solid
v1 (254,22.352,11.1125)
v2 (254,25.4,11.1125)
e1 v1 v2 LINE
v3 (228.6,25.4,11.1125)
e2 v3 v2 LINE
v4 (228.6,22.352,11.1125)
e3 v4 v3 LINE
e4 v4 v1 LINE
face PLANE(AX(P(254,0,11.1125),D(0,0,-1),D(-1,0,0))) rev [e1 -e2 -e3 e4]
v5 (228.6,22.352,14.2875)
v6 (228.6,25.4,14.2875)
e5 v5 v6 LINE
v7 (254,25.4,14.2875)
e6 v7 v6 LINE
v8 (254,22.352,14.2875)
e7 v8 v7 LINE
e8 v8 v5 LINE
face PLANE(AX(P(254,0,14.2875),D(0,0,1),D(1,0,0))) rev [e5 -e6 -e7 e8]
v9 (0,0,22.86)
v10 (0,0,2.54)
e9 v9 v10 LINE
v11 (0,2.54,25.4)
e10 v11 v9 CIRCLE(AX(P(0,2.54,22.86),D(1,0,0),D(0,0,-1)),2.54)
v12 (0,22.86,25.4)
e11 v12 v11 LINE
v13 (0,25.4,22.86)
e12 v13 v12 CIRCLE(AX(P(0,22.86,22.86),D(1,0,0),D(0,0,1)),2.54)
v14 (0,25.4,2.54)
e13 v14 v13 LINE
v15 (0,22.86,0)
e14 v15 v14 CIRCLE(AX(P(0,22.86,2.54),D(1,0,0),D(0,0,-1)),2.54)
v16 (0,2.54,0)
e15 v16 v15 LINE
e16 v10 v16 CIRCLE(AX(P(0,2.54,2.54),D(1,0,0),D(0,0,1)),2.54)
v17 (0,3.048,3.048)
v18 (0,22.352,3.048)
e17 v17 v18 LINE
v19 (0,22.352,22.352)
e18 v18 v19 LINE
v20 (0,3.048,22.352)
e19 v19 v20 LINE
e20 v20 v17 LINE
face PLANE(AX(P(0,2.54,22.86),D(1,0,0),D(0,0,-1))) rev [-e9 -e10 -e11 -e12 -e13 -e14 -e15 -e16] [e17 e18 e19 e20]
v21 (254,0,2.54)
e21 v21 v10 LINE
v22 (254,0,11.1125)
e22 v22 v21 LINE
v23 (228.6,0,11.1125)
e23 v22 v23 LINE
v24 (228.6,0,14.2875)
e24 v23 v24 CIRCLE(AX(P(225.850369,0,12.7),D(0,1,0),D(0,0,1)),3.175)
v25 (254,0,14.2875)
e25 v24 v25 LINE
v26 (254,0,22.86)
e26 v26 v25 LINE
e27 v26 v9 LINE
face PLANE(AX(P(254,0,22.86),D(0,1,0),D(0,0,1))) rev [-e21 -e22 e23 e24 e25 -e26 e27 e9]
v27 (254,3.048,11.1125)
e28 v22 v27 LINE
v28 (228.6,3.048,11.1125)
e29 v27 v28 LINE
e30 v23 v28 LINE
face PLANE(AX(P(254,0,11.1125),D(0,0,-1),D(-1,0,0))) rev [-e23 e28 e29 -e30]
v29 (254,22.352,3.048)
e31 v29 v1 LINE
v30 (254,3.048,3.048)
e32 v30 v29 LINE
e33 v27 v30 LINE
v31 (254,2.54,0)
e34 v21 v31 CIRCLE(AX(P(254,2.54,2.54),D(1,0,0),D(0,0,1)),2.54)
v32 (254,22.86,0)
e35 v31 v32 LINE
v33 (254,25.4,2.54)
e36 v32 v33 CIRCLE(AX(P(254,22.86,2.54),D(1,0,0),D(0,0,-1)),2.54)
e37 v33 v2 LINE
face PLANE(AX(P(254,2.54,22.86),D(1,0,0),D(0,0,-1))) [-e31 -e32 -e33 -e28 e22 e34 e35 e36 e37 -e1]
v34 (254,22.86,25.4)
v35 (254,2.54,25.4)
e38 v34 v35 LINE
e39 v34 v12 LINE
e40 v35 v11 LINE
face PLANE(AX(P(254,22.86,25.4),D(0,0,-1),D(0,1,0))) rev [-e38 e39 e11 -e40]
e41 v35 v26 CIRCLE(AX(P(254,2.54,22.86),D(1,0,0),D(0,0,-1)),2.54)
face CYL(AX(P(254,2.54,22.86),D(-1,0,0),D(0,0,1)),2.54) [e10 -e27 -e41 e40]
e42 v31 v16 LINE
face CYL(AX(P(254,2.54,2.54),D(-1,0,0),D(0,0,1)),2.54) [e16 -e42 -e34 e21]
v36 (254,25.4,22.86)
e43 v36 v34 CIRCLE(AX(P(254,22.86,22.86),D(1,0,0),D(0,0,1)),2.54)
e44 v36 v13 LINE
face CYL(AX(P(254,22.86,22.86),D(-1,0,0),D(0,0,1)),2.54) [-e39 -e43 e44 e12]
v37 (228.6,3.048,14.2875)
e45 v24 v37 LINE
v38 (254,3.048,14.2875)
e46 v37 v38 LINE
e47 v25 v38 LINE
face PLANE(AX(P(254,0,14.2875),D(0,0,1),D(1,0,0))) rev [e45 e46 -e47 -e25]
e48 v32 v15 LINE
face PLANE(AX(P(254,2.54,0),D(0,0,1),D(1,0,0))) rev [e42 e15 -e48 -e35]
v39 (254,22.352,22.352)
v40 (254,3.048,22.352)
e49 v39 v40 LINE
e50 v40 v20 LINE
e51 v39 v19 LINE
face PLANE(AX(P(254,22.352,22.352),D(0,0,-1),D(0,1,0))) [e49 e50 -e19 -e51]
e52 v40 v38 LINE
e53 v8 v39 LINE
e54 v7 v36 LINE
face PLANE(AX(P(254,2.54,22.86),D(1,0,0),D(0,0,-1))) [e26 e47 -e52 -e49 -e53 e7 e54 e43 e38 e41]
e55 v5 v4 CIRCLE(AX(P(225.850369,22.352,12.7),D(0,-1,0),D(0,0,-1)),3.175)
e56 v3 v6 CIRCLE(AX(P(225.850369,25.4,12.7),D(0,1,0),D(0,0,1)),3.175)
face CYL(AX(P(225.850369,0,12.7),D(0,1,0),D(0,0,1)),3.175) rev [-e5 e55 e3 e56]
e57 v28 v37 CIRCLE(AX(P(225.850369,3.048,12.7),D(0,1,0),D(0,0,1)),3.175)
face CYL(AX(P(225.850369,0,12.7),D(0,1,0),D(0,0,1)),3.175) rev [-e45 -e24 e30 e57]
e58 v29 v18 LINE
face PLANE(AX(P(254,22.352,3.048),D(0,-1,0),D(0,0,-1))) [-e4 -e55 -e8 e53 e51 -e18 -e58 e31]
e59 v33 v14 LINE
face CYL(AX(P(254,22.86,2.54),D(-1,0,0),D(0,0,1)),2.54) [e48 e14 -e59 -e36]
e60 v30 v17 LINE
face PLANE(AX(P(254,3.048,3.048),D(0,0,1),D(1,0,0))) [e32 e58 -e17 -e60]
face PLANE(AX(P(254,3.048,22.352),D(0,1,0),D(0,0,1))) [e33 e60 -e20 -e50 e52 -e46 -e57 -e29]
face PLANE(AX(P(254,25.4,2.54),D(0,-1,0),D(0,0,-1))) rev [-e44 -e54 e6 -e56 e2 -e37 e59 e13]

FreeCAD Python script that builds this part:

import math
import FreeCAD as App
import Part
import Sketcher

V = App.Vector
Q = App.Units.Quantity

doc = App.newDocument("Part")
params = doc.addObject("Spreadsheet::Sheet", "Params")
for row, (alias, value) in enumerate([
    ("sketch1_radius", "0.1 in"),
    ("sketch1_width", "0.8 in"),
    ("sketch1_width2", "0.76 in"),
    ("pad1_length", "10 in"),
    ("sketch2_width", "1 in"),
    ("sketch2_radius", "0.125 in"),
    ("sketch2_height", "0.125 in"),
], start=1):
    params.set(f"A{row}", alias)
    params.set(f"B{row}", "=" + value)
    params.setAlias(f"B{row}", alias)

body = doc.addObject("PartDesign::Body", "Body")

# Sketch on YZ plane
sketch1 = body.newObject("Sketcher::SketchObject", "Sketch")
sketch1.AttachmentSupport = (doc.getObject("YZ_Plane"), [""])
sketch1.MapMode = "FlatFace"
sketch1.addGeometry([
    Part.LineSegment(V(2.54, 0, 0), V(22.86, 0, 0)),  # 0
    Part.ArcOfCircle(Part.Circle(V(22.86, 2.54, 0), V(0, 0, 1), 2.54), math.radians(-90), math.radians(0)),  # 1
    Part.LineSegment(V(25.4, 2.54, 0), V(25.4, 22.86, 0)),  # 2
    Part.ArcOfCircle(Part.Circle(V(22.86, 22.86, 0), V(0, 0, 1), 2.54), math.radians(0), math.radians(90)),  # 3
    Part.LineSegment(V(22.86, 25.4, 0), V(2.54, 25.4, 0)),  # 4
    Part.ArcOfCircle(Part.Circle(V(2.54, 22.86, 0), V(0, 0, 1), 2.54), math.radians(90), math.radians(180)),  # 5
    Part.LineSegment(V(0, 22.86, 0), V(0, 2.54, 0)),  # 6
    Part.ArcOfCircle(Part.Circle(V(2.54, 2.54, 0), V(0, 0, 1), 2.54), math.radians(-180), math.radians(-90)),  # 7
    Part.LineSegment(V(3.048, 3.048, 0), V(3.048, 22.352, 0)),  # 8
    Part.LineSegment(V(3.048, 22.352, 0), V(22.352, 22.352, 0)),  # 9
    Part.LineSegment(V(22.352, 22.352, 0), V(22.352, 3.048, 0)),  # 10
    Part.LineSegment(V(22.352, 3.048, 0), V(3.048, 3.048, 0)),  # 11
], False)
sketch1.addConstraint([
    Sketcher.Constraint("Tangent", 0, 2, 1, 1),
    Sketcher.Constraint("Tangent", 1, 2, 2, 1),
    Sketcher.Constraint("Tangent", 2, 2, 3, 1),
    Sketcher.Constraint("Tangent", 3, 2, 4, 1),
    Sketcher.Constraint("Tangent", 4, 2, 5, 1),
    Sketcher.Constraint("Tangent", 5, 2, 6, 1),
    Sketcher.Constraint("Tangent", 6, 2, 7, 1),
    Sketcher.Constraint("Tangent", 7, 2, 0, 1),
    Sketcher.Constraint("Coincident", 8, 2, 9, 1),
    Sketcher.Constraint("Coincident", 9, 2, 10, 1),
    Sketcher.Constraint("Coincident", 10, 2, 11, 1),
    Sketcher.Constraint("Coincident", 11, 2, 8, 1),
    Sketcher.Constraint("Horizontal", 0),
    Sketcher.Constraint("Vertical", 2),
    Sketcher.Constraint("Horizontal", 4),
    Sketcher.Constraint("Vertical", 6),
    Sketcher.Constraint("Vertical", 8),
    Sketcher.Constraint("Horizontal", 9),
    Sketcher.Constraint("Vertical", 10),
    Sketcher.Constraint("Horizontal", 11),
    Sketcher.Constraint("Equal", 1, 3),
    Sketcher.Constraint("Equal", 3, 5),
    Sketcher.Constraint("Equal", 5, 7),
    Sketcher.Constraint("PointOnObject", 0, 2, -1),
    Sketcher.Constraint("PointOnObject", 5, 2, -2),
    Sketcher.Constraint("Equal", 4, 2),
    Sketcher.Constraint("Equal", 11, 8),
    Sketcher.Constraint("Radius", 1, Q("0.1 in")),
    Sketcher.Constraint("DistanceX", 0, 1, 0, 2, Q("0.8 in")),
    Sketcher.Constraint("DistanceX", 9, 1, 9, 2, Q("0.76 in")),
    Sketcher.Constraint("DistanceX", -1, 1, 8, 2, Q("0.12 in")),
    Sketcher.Constraint("DistanceY", -1, 1, 8, 2, Q("0.88 in")),
])
sketch1.setExpression("Constraints[27]", "Params.sketch1_radius")
sketch1.setExpression("Constraints[28]", "Params.sketch1_width")
sketch1.setExpression("Constraints[29]", "Params.sketch1_width2")
pad1 = body.newObject("PartDesign::Pad", "Pad")
pad1.Profile = sketch1
pad1.setExpression("Length", "Params.pad1_length")

# Sketch on XZ plane
sketch2 = body.newObject("Sketcher::SketchObject", "Sketch001")
sketch2.AttachmentSupport = (doc.getObject("XZ_Plane"), [""])
sketch2.MapMode = "FlatFace"
sketch2.AttachmentOffset = App.Placement(V(0, 0, -1 * 25.4), App.Rotation())
sketch2.addGeometry([
    Part.LineSegment(V(254, 11.1125, 0), V(228.6, 11.1125, 0)),
    Part.ArcOfCircle(Part.Circle(V(225.850369, 12.7, 0), V(0, 0, 1), 3.175), math.radians(30), math.radians(330)),
    Part.LineSegment(V(228.6, 14.2875, 0), V(254, 14.2875, 0)),
    Part.LineSegment(V(254, 14.2875, 0), V(254, 11.1125, 0)),
], False)
sketch2.addConstraint([
    Sketcher.Constraint("Coincident", 0, 2, 1, 2),
    Sketcher.Constraint("Coincident", 1, 1, 2, 1),
    Sketcher.Constraint("Coincident", 2, 2, 3, 1),
    Sketcher.Constraint("Coincident", 3, 2, 0, 1),
    Sketcher.Constraint("Horizontal", 0),
    Sketcher.Constraint("Horizontal", 2),
    Sketcher.Constraint("Vertical", 3),
    Sketcher.Constraint("Vertical", 0, 2, 1, 1),
    Sketcher.Constraint("DistanceX", 0, 2, 0, 1, Q("1 in")),
    Sketcher.Constraint("DistanceX", -1, 1, 0, 2, Q("9 in")),
    Sketcher.Constraint("Radius", 1, Q("0.125 in")),
    Sketcher.Constraint("DistanceY", -1, 1, 1, 3, Q("0.5 in")),
    Sketcher.Constraint("DistanceY", 3, 2, 3, 1, Q("0.125 in")),
])
sketch2.setExpression("Constraints[8]", "Params.sketch2_width")
sketch2.setExpression("Constraints[10]", "Params.sketch2_radius")
sketch2.setExpression("Constraints[12]", "Params.sketch2_height")
pocket1 = body.newObject("PartDesign::Pocket", "Pocket")
pocket1.Profile = sketch2
pocket1.Type = "ThroughAll"
pocket1.Midplane = True

doc.recompute()
